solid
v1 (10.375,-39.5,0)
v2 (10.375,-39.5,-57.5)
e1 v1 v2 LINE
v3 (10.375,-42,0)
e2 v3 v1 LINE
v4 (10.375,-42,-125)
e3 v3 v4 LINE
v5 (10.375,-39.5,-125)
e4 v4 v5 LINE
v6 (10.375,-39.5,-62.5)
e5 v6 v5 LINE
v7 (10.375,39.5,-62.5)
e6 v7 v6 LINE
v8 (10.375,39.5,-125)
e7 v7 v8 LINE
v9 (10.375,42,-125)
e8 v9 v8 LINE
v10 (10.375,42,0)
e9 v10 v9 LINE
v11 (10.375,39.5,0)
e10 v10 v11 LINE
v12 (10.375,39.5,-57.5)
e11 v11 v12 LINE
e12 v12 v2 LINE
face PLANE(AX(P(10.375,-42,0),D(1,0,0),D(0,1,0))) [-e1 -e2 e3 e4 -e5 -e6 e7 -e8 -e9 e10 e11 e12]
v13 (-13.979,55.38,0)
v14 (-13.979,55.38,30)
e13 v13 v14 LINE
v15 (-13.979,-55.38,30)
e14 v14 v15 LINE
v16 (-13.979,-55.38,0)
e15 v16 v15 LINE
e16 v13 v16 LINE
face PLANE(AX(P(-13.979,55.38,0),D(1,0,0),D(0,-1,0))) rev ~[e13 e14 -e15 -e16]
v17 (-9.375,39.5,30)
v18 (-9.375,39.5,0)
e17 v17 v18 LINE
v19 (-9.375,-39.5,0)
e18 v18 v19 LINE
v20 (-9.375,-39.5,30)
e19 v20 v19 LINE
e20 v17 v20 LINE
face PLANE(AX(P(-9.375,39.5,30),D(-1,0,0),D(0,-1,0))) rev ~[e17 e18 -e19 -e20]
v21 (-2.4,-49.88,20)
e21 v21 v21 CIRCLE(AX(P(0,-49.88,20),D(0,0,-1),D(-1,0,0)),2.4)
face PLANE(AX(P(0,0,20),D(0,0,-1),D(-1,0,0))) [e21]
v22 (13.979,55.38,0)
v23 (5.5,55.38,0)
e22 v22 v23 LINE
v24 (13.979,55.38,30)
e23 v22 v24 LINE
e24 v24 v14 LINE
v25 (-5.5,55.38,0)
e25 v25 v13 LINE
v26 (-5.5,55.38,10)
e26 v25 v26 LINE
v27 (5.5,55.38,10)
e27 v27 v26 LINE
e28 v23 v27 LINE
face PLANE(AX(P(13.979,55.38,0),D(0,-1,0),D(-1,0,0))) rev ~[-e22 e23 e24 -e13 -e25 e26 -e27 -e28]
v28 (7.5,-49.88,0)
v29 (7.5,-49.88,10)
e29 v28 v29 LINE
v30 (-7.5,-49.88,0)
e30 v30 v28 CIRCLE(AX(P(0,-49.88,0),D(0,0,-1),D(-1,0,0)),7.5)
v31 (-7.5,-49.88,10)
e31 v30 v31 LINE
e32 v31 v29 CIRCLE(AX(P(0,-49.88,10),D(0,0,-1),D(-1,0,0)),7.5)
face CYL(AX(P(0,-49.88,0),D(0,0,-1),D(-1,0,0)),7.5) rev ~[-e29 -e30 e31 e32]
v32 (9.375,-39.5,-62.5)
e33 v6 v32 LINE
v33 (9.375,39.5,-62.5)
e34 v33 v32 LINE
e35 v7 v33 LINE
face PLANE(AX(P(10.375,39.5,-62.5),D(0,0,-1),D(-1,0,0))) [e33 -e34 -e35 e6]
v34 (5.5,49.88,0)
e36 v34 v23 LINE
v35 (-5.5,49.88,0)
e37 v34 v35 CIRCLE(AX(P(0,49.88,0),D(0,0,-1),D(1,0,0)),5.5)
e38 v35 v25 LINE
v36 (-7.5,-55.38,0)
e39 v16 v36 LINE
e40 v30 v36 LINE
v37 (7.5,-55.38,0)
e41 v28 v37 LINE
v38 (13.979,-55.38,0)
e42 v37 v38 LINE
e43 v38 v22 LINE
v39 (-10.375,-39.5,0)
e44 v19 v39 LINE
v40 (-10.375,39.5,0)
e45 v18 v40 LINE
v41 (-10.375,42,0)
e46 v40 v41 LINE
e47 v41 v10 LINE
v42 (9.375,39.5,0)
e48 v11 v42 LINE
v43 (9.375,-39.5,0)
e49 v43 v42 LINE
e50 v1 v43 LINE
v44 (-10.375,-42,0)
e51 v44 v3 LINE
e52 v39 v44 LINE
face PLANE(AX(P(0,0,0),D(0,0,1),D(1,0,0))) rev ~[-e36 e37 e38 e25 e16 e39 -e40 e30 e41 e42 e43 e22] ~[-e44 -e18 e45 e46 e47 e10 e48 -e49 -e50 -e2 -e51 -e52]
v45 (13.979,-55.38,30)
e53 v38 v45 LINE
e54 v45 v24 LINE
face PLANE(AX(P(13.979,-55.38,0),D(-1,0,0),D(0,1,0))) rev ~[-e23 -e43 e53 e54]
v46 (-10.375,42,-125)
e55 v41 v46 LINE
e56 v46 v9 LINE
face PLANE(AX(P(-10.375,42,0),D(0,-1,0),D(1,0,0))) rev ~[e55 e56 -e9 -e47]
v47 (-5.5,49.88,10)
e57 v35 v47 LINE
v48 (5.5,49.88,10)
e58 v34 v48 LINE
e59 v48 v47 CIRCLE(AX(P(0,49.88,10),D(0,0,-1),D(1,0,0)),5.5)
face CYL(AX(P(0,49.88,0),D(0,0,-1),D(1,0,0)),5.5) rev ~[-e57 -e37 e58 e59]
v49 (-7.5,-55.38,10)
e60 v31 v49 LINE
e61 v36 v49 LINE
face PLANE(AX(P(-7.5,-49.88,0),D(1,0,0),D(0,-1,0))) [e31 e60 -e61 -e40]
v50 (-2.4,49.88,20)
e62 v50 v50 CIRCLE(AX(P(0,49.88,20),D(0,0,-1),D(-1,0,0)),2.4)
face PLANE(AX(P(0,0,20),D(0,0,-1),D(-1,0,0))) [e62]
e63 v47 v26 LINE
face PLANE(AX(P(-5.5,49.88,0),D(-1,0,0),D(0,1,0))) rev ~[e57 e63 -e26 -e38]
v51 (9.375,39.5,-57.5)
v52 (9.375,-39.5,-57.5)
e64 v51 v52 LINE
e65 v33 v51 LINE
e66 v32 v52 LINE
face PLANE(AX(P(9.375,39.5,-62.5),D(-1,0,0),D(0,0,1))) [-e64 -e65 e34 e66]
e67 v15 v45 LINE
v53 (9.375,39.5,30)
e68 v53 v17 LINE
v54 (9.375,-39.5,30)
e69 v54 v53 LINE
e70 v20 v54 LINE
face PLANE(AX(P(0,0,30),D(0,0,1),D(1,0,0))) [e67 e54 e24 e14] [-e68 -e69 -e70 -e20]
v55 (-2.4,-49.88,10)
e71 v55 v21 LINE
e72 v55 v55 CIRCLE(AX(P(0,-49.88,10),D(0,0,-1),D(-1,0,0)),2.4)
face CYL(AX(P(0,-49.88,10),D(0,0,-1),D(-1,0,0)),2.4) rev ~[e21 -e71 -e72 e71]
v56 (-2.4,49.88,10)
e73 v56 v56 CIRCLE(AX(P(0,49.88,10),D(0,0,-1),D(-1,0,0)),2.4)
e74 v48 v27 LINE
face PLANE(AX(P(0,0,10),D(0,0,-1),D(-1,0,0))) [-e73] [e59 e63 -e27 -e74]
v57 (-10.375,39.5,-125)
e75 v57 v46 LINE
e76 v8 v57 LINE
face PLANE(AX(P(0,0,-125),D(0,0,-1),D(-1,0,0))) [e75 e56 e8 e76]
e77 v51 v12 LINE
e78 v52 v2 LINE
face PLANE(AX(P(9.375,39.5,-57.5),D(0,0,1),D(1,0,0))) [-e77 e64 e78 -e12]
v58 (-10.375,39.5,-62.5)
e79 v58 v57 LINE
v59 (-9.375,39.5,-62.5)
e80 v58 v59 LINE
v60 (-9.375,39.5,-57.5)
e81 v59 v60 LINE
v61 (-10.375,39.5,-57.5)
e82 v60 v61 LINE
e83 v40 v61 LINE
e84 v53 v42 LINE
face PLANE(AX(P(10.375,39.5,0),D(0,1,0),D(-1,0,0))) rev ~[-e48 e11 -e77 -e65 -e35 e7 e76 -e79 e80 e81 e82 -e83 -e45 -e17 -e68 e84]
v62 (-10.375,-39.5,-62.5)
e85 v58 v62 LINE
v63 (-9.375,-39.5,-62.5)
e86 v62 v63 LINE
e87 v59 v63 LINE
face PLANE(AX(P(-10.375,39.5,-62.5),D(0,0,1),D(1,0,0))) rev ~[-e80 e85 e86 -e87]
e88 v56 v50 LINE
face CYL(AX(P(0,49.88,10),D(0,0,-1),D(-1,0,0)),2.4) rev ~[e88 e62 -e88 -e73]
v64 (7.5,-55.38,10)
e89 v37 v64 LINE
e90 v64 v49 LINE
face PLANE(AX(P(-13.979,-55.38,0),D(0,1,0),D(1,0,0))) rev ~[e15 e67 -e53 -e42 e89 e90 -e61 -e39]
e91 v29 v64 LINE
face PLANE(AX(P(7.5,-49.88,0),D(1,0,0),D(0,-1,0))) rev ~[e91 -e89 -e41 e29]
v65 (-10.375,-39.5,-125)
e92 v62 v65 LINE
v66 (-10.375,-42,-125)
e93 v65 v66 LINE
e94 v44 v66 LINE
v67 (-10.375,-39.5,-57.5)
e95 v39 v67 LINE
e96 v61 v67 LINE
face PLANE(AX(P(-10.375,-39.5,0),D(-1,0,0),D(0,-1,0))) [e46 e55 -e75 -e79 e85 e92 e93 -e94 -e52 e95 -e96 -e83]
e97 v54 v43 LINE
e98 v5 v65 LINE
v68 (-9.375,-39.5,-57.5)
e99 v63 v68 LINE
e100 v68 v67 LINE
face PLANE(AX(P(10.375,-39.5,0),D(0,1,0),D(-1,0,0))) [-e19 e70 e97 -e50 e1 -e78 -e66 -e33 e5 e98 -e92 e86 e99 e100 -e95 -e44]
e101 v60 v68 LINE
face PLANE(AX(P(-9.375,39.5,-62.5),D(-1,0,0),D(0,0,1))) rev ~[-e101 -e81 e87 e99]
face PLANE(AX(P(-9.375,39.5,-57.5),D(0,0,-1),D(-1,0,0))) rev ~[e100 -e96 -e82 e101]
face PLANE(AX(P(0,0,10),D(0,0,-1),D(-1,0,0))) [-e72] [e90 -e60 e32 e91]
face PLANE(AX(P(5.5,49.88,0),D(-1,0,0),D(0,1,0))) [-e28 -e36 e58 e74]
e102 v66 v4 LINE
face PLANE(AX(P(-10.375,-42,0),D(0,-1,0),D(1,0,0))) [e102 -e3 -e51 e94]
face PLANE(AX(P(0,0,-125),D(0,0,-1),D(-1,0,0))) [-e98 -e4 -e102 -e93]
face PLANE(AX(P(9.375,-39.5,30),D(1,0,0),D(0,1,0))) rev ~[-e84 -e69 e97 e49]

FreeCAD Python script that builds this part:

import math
import FreeCAD as App
import Part
import Sketcher

V = App.Vector


def add_polygon(sketch, points):
    """Adds a closed chain of lines whose ends are joined by coincident constraints."""
    first, n = sketch.GeometryCount, len(points)
    for a, b in zip(points, points[1:] + points[:1]):
        sketch.addGeometry(Part.LineSegment(App.Vector(*a, 0), App.Vector(*b, 0)), False)
    for i in range(n):
        sketch.addConstraint(Sketcher.Constraint("Coincident", first + i, 2, first + (i + 1) % n, 1))

doc = App.newDocument("Part")
body = doc.addObject("PartDesign::Body", "Body")

sketch1 = body.newObject("Sketcher::SketchObject", "Sketch")
sketch1.AttachmentSupport = (doc.getObject("XY_Plane"), [""])
sketch1.MapMode = "FlatFace"
add_polygon(sketch1, [(-13.979, 55.38), (-13.979, -55.38), (13.979, -55.38), (13.979, 55.38)])
sketch1.addConstraint(Sketcher.Constraint("Vertical", 0))
sketch1.addConstraint(Sketcher.Constraint("Horizontal", 1))
sketch1.addConstraint(Sketcher.Constraint("Vertical", 2))
sketch1.addConstraint(Sketcher.Constraint("Horizontal", 3))
sketch1.addConstraint(Sketcher.Constraint("Symmetric", 0, 2, 2, 2, -1, 1))
sketch1.addConstraint(Sketcher.Constraint("DistanceY", 0, 2, 0, 1, 110.76))
sketch1.addConstraint(Sketcher.Constraint("DistanceX", 1, 1, 1, 2, 27.958))
pad1 = body.newObject("PartDesign::Pad", "Pad")
pad1.Profile = sketch1
pad1.Length = 30

sketch2 = body.newObject("Sketcher::SketchObject", "Sketch001")
sketch2.AttachmentSupport = (doc.getObject("XY_Plane"), [""])
sketch2.MapMode = "FlatFace"
sketch2.addGeometry(Part.LineSegment(V(-7.5, -55.38, 0), V(-7.5, -49.88, 0)), False)
sketch2.addGeometry(Part.ArcOfCircle(Part.Circle(V(0, -49.88, 0), V(0, 0, 1), 7.5), math.radians(0), math.radians(180)), False)
sketch2.addGeometry(Part.LineSegment(V(7.5, -49.88, 0), V(7.5, -55.38, 0)), False)
sketch2.addGeometry(Part.LineSegment(V(7.5, -55.38, 0), V(-7.5, -55.38, 0)), False)
sketch2.addGeometry(Part.LineSegment(V(5.5, 55.38, 0), V(5.5, 49.88, 0)), False)
sketch2.addGeometry(Part.ArcOfCircle(Part.Circle(V(0, 49.88, 0), V(0, 0, 1), 5.5), math.radians(180), math.radians(360)), False)
sketch2.addGeometry(Part.LineSegment(V(-5.5, 49.88, 0), V(-5.5, 55.38, 0)), False)
sketch2.addGeometry(Part.LineSegment(V(-5.5, 55.38, 0), V(5.5, 55.38, 0)), False)
sketch2.addConstraint(Sketcher.Constraint("Tangent", 0, 2, 1, 2))
sketch2.addConstraint(Sketcher.Constraint("Tangent", 1, 1, 2, 1))
sketch2.addConstraint(Sketcher.Constraint("Coincident", 2, 2, 3, 1))
sketch2.addConstraint(Sketcher.Constraint("Coincident", 3, 2, 0, 1))
sketch2.addConstraint(Sketcher.Constraint("Tangent", 4, 2, 5, 2))
sketch2.addConstraint(Sketcher.Constraint("Tangent", 5, 1, 6, 1))
sketch2.addConstraint(Sketcher.Constraint("Coincident", 6, 2, 7, 1))
sketch2.addConstraint(Sketcher.Constraint("Coincident", 7, 2, 4, 1))
sketch2.addConstraint(Sketcher.Constraint("Vertical", 0))
sketch2.addConstraint(Sketcher.Constraint("Vertical", 2))
sketch2.addConstraint(Sketcher.Constraint("Horizontal", 3))
sketch2.addConstraint(Sketcher.Constraint("Vertical", 4))
sketch2.addConstraint(Sketcher.Constraint("Vertical", 6))
sketch2.addConstraint(Sketcher.Constraint("Horizontal", 7))
sketch2.addConstraint(Sketcher.Constraint("Symmetric", 1, 3, 5, 3, -1, 1))
sketch2.addConstraint(Sketcher.Constraint("PointOnObject", 1, 3, -2))
sketch2.addConstraint(Sketcher.Constraint("Equal", 2, 4))
sketch2.addConstraint(Sketcher.Constraint("Radius", 1, 7.5))
sketch2.addConstraint(Sketcher.Constraint("Radius", 5, 5.5))
sketch2.addConstraint(Sketcher.Constraint("DistanceY", 0, 1, 0, 2, 5.5))
sketch2.addConstraint(Sketcher.Constraint("DistanceY", 1, 3, -1, 1, 49.88))
pocket1 = body.newObject("PartDesign::Pocket", "Pocket")
pocket1.Profile = sketch2
pocket1.Length = 10
pocket1.Reversed = True

sketch3 = body.newObject("Sketcher::SketchObject", "Sketch002")
sketch3.AttachmentSupport = (doc.getObject("XY_Plane"), [""])
sketch3.MapMode = "FlatFace"
sketch3.AttachmentOffset = App.Placement(V(0, 0, 10), App.Rotation())
sketch3.addGeometry(Part.Circle(V(0, 49.88, 0), V(0, 0, 1), 2.4), False)
sketch3.addGeometry(Part.Circle(V(0, -49.88, 0), V(0, 0, 1), 2.4), False)
sketch3.addConstraint(Sketcher.Constraint("Equal", 0, 1))
sketch3.addConstraint(Sketcher.Constraint("Symmetric", 0, 3, 1, 3, -1, 1))
sketch3.addConstraint(Sketcher.Constraint("PointOnObject", 0, 3, -2))
sketch3.addConstraint(Sketcher.Constraint("Diameter", 0, 4.8))
sketch3.addConstraint(Sketcher.Constraint("DistanceY", -1, 1, 0, 3, 49.88))
pocket2 = body.newObject("PartDesign::Pocket", "Pocket001")
pocket2.Profile = sketch3
pocket2.Length = 10
pocket2.Reversed = True

sketch4 = body.newObject("Sketcher::SketchObject", "Sketch003")
sketch4.AttachmentSupport = (doc.getObject("XY_Plane"), [""])
sketch4.MapMode = "FlatFace"
sketch4.AttachmentOffset = App.Placement(V(0, 0, 30), App.Rotation())
add_polygon(sketch4, [(-9.375, 39.5), (-9.375, -39.5), (9.375, -39.5), (9.375, 39.5)])
sketch4.addConstraint(Sketcher.Constraint("Vertical", 0))
sketch4.addConstraint(Sketcher.Constraint("Horizontal", 1))
sketch4.addConstraint(Sketcher.Constraint("Vertical", 2))
sketch4.addConstraint(Sketcher.Constraint("Horizontal", 3))
sketch4.addConstraint(Sketcher.Constraint("Symmetric", 0, 2, 2, 2, -1, 1))
sketch4.addConstraint(Sketcher.Constraint("DistanceY", 0, 2, 0, 1, 79.0))
sketch4.addConstraint(Sketcher.Constraint("DistanceX", 1, 1, 1, 2, 18.75))
pocket3 = body.newObject("PartDesign::Pocket", "Pocket002")
pocket3.Profile = sketch4
pocket3.Length = 30

sketch5 = body.newObject("Sketcher::SketchObject", "Sketch004")
sketch5.AttachmentSupport = (doc.getObject("XY_Plane"), [""])
sketch5.MapMode = "FlatFace"
add_polygon(sketch5, [(-10.375, -39.5), (10.375, -39.5), (10.375, -42), (-10.375, -42)])
add_polygon(sketch5, [(10.375, 42), (10.375, 39.5), (-10.375, 39.5), (-10.375, 42)])
sketch5.addConstraint(Sketcher.Constraint("Horizontal", 0))
sketch5.addConstraint(Sketcher.Constraint("Vertical", 1))
sketch5.addConstraint(Sketcher.Constraint("Horizontal", 2))
sketch5.addConstraint(Sketcher.Constraint("Vertical", 3))
sketch5.addConstraint(Sketcher.Constraint("Vertical", 4))
sketch5.addConstraint(Sketcher.Constraint("Horizontal", 5))
sketch5.addConstraint(Sketcher.Constraint("Vertical", 6))
sketch5.addConstraint(Sketcher.Constraint("Horizontal", 7))
sketch5.addConstraint(Sketcher.Constraint("Symmetric", 3, 2, 4, 2, -1, 1))
sketch5.addConstraint(Sketcher.Constraint("Symmetric", 1, 2, 6, 2, -1, 1))
sketch5.addConstraint(Sketcher.Constraint("Vertical", 1, 2, 4, 2))
sketch5.addConstraint(Sketcher.Constraint("DistanceY", 1, 2, 1, 1, 2.5))
sketch5.addConstraint(Sketcher.Constraint("DistanceY", 1, 2, -1, 1, 42.0))
sketch5.addConstraint(Sketcher.Constraint("DistanceX", 0, 1, 0, 2, 20.75))
pad2 = body.newObject("PartDesign::Pad", "Pad001")
pad2.Profile = sketch5
pad2.Length = 125
pad2.Reversed = True

sketch6 = body.newObject("Sketcher::SketchObject", "Sketch005")
sketch6.AttachmentSupport = (doc.getObject("XZ_Plane"), [""])
sketch6.MapMode = "FlatFace"
sketch6.AttachmentOffset = App.Placement(V(0, 0, -39.5), App.Rotation())
add_polygon(sketch6, [(10.375, -62.5), (10.375, -57.5), (9.375, -57.5), (9.375, -62.5)])
add_polygon(sketch6, [(-9.375, -57.5), (-10.375, -57.5), (-10.375, -62.5), (-9.375, -62.5)])
sketch6.addConstraint(Sketcher.Constraint("Vertical", 0))
sketch6.addConstraint(Sketcher.Constraint("Horizontal", 1))
sketch6.addConstraint(Sketcher.Constraint("Vertical", 2))
sketch6.addConstraint(Sketcher.Constraint("Horizontal", 3))
sketch6.addConstraint(Sketcher.Constraint("Horizontal", 4))
sketch6.addConstraint(Sketcher.Constraint("Vertical", 5))
sketch6.addConstraint(Sketcher.Constraint("Horizontal", 6))
sketch6.addConstraint(Sketcher.Constraint("Vertical", 7))
sketch6.addConstraint(Sketcher.Constraint("Symmetric", 0, 2, 4, 2, -2))
sketch6.addConstraint(Sketcher.Constraint("Symmetric", 2, 2, 6, 2, -2))
sketch6.addConstraint(Sketcher.Constraint("DistanceX", 1, 2, 1, 1, 1.0))
sketch6.addConstraint(Sketcher.Constraint("DistanceY", 0, 1, 0, 2, 5.0))
sketch6.addConstraint(Sketcher.Constraint("DistanceY", 0, 2, -1, 1, 57.5))
sketch6.addConstraint(Sketcher.Constraint("DistanceX", 4, 2, 1, 2, 19.75))
pad3 = body.newObject("PartDesign::Pad", "Pad002")
pad3.Profile = sketch6
pad3.Length = 80

doc.recompute()
